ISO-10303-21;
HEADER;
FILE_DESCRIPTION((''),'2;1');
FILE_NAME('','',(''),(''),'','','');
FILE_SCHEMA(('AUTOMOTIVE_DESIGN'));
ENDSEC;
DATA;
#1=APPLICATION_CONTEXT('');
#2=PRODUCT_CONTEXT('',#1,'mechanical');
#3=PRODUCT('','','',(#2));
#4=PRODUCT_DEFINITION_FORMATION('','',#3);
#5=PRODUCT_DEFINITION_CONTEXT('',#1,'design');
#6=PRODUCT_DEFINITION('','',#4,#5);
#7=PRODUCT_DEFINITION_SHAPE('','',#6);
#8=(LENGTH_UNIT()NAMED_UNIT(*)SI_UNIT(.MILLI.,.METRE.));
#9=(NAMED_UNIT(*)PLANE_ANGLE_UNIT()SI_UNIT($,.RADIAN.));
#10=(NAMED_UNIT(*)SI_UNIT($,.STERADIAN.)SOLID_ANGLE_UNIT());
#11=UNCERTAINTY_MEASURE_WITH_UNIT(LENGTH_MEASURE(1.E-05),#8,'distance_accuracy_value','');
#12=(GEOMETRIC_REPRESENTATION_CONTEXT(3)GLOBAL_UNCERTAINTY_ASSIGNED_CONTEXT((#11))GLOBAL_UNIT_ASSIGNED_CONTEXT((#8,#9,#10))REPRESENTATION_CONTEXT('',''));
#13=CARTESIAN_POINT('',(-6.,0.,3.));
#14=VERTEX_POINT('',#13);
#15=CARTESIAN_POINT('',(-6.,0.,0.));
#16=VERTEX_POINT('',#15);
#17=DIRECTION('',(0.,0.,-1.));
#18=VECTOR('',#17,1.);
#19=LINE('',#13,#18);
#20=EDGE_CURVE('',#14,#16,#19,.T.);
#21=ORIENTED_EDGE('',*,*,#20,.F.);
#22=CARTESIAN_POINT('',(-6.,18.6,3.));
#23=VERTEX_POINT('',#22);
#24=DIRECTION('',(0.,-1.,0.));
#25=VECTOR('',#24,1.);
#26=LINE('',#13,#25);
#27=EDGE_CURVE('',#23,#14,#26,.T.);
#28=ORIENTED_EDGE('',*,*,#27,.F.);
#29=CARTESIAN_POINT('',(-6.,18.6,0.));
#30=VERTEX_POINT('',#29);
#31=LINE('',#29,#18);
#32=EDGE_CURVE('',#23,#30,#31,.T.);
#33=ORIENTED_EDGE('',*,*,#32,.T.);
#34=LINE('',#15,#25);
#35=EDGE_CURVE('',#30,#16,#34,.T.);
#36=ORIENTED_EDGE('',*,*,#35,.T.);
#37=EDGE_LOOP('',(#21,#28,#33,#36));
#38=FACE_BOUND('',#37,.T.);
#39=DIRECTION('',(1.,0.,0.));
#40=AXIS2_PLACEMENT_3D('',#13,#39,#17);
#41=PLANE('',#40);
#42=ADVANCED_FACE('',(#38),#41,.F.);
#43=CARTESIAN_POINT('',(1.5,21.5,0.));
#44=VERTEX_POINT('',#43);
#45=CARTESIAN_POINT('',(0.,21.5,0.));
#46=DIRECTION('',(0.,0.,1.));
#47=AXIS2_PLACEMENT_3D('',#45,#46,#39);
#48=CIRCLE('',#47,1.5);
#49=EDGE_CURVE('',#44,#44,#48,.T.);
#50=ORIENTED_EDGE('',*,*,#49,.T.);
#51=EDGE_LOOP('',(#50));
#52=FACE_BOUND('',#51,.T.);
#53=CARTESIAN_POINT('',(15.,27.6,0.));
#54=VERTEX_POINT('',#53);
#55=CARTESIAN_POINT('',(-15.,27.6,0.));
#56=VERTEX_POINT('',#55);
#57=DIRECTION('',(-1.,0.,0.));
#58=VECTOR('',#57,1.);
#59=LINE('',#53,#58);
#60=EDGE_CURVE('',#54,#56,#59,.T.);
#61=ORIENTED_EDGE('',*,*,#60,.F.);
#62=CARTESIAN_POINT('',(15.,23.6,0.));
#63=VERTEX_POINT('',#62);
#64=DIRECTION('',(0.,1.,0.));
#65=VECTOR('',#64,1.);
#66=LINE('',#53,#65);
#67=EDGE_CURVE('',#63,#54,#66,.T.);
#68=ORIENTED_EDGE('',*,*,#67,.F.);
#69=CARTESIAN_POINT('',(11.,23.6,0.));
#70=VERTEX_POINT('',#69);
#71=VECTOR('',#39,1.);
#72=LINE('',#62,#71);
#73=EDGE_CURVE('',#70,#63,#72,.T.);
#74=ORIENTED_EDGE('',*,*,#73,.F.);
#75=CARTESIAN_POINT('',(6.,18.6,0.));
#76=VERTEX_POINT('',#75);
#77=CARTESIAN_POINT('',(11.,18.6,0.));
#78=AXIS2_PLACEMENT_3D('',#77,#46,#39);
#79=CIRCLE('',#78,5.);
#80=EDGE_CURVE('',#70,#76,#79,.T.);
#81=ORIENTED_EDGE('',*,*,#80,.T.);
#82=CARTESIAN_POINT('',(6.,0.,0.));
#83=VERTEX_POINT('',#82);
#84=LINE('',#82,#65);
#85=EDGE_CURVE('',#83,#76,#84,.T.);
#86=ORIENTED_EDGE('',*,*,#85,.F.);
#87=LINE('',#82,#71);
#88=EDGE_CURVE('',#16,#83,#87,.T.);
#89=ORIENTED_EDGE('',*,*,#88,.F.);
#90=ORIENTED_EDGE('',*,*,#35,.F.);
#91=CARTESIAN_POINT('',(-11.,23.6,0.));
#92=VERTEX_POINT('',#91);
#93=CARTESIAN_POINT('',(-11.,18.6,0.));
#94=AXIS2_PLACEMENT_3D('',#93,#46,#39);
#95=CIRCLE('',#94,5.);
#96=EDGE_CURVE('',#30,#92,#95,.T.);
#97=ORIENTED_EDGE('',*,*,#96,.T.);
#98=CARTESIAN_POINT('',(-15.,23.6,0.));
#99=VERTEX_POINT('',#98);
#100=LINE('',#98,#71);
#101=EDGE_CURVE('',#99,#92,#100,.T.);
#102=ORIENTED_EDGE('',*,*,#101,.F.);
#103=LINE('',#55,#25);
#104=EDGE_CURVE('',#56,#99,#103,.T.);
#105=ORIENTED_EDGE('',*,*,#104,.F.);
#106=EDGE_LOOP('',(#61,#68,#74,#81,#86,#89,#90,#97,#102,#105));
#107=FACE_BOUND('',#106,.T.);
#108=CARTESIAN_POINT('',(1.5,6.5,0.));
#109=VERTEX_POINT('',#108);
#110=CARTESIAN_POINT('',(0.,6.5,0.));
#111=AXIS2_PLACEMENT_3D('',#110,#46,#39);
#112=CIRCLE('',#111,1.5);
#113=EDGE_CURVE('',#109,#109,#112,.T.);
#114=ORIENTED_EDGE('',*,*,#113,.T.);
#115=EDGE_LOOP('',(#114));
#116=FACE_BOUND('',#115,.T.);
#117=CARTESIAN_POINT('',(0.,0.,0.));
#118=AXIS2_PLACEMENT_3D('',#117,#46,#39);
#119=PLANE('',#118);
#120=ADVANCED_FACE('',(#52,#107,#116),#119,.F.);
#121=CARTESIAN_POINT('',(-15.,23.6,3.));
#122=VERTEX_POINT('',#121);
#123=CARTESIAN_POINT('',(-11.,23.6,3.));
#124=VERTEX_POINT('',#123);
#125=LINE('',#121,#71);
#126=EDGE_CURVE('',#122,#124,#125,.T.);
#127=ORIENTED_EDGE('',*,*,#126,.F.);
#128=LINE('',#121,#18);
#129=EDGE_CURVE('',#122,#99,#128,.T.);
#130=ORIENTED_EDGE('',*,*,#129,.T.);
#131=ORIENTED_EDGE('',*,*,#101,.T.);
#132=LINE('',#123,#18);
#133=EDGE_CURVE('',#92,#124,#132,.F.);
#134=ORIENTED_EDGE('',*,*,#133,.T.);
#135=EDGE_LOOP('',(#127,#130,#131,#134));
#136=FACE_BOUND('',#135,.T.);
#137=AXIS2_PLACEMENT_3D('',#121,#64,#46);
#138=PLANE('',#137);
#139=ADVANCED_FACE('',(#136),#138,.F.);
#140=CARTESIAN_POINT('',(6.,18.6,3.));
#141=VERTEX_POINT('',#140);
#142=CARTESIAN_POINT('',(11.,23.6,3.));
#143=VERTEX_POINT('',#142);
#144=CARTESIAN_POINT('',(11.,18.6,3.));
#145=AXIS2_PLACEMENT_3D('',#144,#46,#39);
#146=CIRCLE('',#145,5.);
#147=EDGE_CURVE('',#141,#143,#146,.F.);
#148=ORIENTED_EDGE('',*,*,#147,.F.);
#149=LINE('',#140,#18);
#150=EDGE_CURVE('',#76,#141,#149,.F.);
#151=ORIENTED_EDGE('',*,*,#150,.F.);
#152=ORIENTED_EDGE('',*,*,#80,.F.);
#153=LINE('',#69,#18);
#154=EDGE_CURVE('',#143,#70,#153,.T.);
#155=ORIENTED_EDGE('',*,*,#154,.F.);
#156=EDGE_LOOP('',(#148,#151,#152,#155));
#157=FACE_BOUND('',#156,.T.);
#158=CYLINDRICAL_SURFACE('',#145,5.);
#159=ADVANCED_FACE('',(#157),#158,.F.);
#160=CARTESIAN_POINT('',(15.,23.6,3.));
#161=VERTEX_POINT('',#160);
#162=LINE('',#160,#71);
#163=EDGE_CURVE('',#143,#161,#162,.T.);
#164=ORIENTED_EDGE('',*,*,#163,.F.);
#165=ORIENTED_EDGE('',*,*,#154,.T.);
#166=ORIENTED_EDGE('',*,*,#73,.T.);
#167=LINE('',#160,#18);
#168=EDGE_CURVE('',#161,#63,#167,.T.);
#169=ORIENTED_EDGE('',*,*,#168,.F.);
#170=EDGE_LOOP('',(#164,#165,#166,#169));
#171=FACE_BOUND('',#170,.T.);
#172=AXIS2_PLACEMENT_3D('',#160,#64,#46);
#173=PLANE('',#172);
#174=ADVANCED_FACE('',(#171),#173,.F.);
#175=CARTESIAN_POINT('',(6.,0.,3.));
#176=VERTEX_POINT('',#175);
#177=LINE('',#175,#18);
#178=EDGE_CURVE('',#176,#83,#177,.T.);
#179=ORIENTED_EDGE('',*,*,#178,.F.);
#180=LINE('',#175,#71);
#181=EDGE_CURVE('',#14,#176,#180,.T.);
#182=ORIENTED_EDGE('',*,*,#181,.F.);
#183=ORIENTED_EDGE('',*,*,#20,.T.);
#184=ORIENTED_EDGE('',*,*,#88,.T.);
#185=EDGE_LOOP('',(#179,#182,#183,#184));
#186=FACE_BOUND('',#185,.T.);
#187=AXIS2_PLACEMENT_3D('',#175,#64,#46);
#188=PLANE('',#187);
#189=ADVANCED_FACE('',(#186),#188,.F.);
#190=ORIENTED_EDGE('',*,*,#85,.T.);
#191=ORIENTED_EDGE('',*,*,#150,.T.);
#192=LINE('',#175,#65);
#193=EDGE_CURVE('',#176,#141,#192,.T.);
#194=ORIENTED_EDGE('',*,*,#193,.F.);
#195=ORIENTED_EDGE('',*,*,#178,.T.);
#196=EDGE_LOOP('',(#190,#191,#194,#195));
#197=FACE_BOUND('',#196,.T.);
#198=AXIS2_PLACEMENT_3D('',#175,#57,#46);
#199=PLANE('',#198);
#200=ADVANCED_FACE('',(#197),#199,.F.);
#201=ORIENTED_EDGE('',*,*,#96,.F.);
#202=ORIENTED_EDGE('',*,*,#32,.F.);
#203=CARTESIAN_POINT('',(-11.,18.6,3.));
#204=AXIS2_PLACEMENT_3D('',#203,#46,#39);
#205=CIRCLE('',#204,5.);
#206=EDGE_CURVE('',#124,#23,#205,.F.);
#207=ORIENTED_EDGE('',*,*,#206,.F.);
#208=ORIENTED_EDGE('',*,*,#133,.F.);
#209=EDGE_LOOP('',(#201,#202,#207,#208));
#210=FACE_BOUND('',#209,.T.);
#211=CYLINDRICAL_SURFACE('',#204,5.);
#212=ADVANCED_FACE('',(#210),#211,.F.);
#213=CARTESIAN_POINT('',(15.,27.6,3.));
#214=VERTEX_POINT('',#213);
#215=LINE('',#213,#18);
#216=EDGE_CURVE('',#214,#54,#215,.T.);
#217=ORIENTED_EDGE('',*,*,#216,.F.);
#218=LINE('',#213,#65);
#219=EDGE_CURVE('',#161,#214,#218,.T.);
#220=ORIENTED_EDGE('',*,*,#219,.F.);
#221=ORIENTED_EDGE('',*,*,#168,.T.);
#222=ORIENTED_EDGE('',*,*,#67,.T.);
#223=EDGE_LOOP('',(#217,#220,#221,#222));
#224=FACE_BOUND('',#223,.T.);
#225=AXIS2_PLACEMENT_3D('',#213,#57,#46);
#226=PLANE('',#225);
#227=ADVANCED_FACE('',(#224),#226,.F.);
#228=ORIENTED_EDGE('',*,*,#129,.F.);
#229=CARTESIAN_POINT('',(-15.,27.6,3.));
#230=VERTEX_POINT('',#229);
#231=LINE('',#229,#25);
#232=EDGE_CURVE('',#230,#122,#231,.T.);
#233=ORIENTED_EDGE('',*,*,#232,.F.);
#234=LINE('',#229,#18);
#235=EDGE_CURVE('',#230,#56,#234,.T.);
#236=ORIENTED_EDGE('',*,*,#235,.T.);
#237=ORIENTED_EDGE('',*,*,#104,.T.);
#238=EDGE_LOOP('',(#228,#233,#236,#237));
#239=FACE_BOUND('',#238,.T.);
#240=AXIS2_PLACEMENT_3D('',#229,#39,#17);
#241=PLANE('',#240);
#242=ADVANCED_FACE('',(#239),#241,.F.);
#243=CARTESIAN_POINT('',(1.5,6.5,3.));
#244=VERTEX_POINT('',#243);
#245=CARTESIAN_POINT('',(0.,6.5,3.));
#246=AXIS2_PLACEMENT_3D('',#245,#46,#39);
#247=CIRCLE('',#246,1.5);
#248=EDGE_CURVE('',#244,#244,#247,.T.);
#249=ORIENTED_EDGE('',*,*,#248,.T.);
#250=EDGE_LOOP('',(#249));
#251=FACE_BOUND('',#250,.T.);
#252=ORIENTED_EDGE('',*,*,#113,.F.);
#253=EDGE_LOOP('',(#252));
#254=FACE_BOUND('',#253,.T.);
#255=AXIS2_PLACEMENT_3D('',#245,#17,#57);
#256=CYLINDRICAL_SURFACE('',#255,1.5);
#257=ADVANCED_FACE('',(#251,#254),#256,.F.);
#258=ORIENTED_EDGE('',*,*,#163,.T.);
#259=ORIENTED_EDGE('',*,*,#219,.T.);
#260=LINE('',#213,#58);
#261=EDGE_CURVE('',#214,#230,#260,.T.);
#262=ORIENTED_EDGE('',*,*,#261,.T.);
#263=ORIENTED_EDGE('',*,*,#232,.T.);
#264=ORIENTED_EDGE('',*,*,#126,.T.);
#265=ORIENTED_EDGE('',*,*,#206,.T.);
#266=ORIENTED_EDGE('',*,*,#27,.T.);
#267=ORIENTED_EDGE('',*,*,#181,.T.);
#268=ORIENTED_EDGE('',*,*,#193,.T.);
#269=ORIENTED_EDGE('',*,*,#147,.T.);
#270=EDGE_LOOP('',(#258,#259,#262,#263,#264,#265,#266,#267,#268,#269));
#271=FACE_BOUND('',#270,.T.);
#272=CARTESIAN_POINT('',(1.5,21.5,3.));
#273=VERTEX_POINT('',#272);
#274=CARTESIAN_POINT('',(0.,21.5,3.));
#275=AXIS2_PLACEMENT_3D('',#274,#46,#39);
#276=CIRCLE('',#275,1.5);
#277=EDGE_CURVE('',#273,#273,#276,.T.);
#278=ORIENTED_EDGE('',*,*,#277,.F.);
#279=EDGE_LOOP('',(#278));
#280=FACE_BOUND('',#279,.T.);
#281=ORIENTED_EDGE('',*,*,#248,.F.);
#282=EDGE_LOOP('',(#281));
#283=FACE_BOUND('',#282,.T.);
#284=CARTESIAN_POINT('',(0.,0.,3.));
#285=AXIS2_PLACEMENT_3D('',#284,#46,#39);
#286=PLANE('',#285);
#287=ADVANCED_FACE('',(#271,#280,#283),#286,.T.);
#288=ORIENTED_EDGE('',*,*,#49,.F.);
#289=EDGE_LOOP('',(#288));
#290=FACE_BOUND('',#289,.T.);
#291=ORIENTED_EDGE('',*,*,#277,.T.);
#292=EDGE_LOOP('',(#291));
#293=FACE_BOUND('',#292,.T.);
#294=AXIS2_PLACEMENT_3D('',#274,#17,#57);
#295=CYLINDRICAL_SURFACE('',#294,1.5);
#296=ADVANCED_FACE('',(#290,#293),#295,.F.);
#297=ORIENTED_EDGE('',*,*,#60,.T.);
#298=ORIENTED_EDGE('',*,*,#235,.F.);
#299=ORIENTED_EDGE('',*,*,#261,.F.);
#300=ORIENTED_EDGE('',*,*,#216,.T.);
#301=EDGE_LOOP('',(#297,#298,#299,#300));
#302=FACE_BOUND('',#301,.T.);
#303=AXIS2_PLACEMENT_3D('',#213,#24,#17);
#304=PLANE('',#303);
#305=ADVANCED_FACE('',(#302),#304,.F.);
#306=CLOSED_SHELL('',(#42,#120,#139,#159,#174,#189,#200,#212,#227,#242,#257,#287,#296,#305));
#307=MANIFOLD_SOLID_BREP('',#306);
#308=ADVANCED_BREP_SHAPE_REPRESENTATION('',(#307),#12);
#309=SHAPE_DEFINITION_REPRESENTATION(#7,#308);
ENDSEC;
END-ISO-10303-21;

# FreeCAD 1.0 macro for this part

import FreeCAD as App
import Part
import Sketcher
from FreeCAD import Vector
Q = App.Units.Quantity


def edges_at(feature, points):
    """Names of the edges that pass closest to the given points."""
    edges = feature.Shape.Edges
    near = lambda p: min(range(len(edges)), key=lambda i: edges[i].distToShape(Part.Vertex(*p))[0])
    return sorted({f"Edge{near(p) + 1}" for p in points})


def add_polygon(sketch, points):
    """Adds a closed chain of lines whose ends are joined by coincident constraints."""
    first, n = sketch.GeometryCount, len(points)
    for a, b in zip(points, points[1:] + points[:1]):
        sketch.addGeometry(Part.LineSegment(App.Vector(*a, 0), App.Vector(*b, 0)), False)
    for i in range(n):
        sketch.addConstraint(Sketcher.Constraint("Coincident", first + i, 2, first + (i + 1) % n, 1))

doc = App.newDocument("Part")
body = doc.addObject("PartDesign::Body", "Body")

# Sketch on XY plane
sketch1 = doc.addObject("Sketcher::SketchObject", "Sketch")
body.addObject(sketch1)
sketch1.AttachmentSupport = (doc.XY_Plane, [""])
sketch1.MapMode = "FlatFace"
add_polygon(sketch1, [(-6, 0), (6, 0), (6, 23.6), (15, 23.6), (15, 27.6), (-15, 27.6), (-15, 23.6), (-6, 23.6)])  # lines 0-7
sketch1.addGeometry(Part.Circle(Vector(0, 6.5, 0), Vector(0, 0, 1), 1.5), False)  # 8
sketch1.addGeometry(Part.Circle(Vector(0, 21.5, 0), Vector(0, 0, 1), 1.5), False)  # 9
sketch1.addConstraint(Sketcher.Constraint("Horizontal", 0))
sketch1.addConstraint(Sketcher.Constraint("Vertical", 1))
sketch1.addConstraint(Sketcher.Constraint("Horizontal", 2))
sketch1.addConstraint(Sketcher.Constraint("Vertical", 3))
sketch1.addConstraint(Sketcher.Constraint("Horizontal", 4))
sketch1.addConstraint(Sketcher.Constraint("Vertical", 5))
sketch1.addConstraint(Sketcher.Constraint("Horizontal", 6))
sketch1.addConstraint(Sketcher.Constraint("Vertical", 7))
sketch1.addConstraint(Sketcher.Constraint("Equal", 8, 9))
sketch1.addConstraint(Sketcher.Constraint("Symmetric", 0, 2, 7, 2, -1, 1))
sketch1.addConstraint(Sketcher.Constraint("Symmetric", 2, 2, 5, 2, -2))
sketch1.addConstraint(Sketcher.Constraint("PointOnObject", 8, 3, -2))
sketch1.addConstraint(Sketcher.Constraint("PointOnObject", 9, 3, -2))
sketch1.addConstraint(Sketcher.Constraint("Diameter", 8, Q("3 mm")))
sketch1.addConstraint(Sketcher.Constraint("DistanceX", 0, 1, 0, 2, Q("12 mm")))
sketch1.addConstraint(Sketcher.Constraint("DistanceX", 2, 1, 2, 2, Q("9 mm")))
sketch1.addConstraint(Sketcher.Constraint("DistanceY", 3, 1, 3, 2, Q("4 mm")))
sketch1.addConstraint(Sketcher.Constraint("DistanceY", 1, 1, 1, 2, Q("23.6 mm")))
sketch1.addConstraint(Sketcher.Constraint("DistanceY", 8, 3, 9, 3, Q("15 mm")))
sketch1.addConstraint(Sketcher.Constraint("DistanceY", -1, 1, 8, 3, Q("6.5 mm")))
pad1 = doc.addObject("PartDesign::Pad", "Pad")
body.addObject(pad1)
pad1.Profile = sketch1
pad1.Length = 3
doc.recompute()

fillet = doc.addObject("PartDesign::Fillet", "Fillet")
body.addObject(fillet)
fillet.Base = (pad1, edges_at(pad1, [(-6, 23.6, 1.5)]))
fillet.Radius = 5
doc.recompute()

fillet2 = doc.addObject("PartDesign::Fillet", "Fillet001")
body.addObject(fillet2)
fillet2.Base = (fillet, edges_at(fillet, [(6, 23.6, 1.5)]))
fillet2.Radius = 5

doc.recompute()
